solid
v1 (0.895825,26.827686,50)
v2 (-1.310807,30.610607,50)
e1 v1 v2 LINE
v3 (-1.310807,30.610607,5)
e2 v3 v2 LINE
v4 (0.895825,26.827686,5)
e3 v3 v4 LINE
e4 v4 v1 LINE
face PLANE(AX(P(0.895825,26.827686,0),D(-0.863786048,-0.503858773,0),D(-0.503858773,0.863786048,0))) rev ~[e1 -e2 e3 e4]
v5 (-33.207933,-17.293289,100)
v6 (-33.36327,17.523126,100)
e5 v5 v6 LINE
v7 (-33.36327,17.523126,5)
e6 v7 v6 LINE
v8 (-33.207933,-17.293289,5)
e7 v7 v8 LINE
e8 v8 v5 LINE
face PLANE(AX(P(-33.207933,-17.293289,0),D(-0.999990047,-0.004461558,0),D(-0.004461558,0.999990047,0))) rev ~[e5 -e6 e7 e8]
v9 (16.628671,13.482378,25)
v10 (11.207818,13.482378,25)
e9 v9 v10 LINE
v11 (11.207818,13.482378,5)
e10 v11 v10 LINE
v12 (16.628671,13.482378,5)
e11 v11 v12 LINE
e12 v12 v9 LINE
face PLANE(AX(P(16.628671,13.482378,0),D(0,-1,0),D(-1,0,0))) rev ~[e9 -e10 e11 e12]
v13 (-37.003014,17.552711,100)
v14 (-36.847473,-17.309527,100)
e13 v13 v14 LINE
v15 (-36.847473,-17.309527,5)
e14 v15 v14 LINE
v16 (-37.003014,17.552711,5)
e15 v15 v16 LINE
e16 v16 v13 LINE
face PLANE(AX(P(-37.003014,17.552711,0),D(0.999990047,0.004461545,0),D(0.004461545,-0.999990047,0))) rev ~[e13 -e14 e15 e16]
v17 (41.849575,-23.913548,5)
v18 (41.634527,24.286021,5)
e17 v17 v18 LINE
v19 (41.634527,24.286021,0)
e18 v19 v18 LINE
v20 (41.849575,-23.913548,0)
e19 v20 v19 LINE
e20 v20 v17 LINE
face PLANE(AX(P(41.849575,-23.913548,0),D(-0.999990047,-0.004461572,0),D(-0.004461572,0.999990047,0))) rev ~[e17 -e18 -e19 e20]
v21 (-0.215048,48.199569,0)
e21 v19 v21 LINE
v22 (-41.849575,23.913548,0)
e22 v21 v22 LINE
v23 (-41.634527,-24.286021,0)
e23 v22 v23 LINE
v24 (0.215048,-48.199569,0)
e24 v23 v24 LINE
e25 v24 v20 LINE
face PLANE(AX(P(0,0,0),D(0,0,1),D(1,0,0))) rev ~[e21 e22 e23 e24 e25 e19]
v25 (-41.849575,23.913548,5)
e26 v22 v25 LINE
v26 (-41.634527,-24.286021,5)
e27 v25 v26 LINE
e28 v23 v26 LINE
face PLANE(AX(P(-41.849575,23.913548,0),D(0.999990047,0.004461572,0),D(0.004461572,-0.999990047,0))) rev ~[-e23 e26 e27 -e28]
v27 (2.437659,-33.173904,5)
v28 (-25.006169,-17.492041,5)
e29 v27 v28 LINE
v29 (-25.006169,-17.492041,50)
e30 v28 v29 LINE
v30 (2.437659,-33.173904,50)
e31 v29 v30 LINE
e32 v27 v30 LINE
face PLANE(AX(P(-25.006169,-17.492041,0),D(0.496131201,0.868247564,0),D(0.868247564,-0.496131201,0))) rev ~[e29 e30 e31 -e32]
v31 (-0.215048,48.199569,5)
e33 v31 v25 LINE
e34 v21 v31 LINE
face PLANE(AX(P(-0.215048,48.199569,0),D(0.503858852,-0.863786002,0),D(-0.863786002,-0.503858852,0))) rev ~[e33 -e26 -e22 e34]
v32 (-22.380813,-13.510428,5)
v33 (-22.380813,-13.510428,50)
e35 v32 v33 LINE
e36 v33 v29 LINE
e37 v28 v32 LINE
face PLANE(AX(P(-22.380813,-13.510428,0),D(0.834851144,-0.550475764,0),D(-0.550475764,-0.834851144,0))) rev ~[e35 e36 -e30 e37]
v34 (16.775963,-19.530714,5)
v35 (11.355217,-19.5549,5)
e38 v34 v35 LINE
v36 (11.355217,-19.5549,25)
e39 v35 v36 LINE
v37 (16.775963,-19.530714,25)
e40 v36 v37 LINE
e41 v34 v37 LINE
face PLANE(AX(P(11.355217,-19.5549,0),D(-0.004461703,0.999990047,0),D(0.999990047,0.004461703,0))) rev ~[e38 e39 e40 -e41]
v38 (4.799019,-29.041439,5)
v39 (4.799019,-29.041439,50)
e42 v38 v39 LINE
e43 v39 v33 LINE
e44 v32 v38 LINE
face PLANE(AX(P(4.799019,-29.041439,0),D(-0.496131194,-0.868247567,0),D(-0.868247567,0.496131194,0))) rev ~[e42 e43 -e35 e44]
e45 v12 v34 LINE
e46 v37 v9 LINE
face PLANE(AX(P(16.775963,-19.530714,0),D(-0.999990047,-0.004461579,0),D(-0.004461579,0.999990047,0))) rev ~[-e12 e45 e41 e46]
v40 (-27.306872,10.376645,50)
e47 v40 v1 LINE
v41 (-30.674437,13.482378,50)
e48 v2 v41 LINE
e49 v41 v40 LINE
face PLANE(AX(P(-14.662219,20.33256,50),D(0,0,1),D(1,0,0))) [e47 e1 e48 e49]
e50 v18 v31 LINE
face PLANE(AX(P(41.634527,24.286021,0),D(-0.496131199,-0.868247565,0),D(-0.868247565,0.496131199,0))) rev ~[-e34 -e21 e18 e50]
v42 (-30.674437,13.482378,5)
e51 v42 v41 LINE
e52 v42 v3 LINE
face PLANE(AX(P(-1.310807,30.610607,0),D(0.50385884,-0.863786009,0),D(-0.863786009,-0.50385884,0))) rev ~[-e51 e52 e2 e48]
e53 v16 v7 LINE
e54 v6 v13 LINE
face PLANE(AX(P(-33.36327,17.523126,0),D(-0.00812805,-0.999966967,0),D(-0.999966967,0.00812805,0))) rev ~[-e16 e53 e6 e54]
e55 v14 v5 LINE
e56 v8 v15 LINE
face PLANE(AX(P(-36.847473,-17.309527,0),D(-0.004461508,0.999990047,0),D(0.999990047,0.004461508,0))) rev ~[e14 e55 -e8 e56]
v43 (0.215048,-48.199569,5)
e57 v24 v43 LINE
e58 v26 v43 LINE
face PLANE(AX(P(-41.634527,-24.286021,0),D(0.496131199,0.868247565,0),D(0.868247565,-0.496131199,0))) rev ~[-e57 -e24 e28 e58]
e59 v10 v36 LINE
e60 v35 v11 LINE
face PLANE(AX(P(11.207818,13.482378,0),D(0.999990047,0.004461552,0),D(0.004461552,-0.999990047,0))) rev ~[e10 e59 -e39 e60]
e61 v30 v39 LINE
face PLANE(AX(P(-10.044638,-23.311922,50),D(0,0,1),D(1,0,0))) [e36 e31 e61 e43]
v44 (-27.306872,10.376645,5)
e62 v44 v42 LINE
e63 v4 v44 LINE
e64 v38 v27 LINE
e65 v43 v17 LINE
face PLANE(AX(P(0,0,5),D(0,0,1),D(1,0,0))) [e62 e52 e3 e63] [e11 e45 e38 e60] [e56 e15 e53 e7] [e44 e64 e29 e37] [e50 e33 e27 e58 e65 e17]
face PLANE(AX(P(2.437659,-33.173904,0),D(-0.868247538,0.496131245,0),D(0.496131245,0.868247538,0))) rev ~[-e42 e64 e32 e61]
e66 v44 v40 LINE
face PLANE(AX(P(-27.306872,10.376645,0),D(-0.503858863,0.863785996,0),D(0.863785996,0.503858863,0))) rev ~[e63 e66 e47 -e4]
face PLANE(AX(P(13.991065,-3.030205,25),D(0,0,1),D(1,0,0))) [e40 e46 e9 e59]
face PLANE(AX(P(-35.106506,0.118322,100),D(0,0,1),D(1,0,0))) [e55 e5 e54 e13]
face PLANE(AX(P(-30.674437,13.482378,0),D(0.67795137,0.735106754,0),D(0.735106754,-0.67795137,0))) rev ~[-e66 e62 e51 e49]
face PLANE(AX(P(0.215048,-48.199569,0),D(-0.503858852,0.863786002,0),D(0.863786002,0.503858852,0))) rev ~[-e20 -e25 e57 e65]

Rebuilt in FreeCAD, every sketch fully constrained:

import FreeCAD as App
import Part
import Sketcher

V = App.Vector
Q = App.Units.Quantity


def add_polygon(sketch, points):
    """Adds a closed chain of lines whose ends are joined by coincident constraints."""
    first, n = sketch.GeometryCount, len(points)
    for a, b in zip(points, points[1:] + points[:1]):
        sketch.addGeometry(Part.LineSegment(App.Vector(*a, 0), App.Vector(*b, 0)), False)
    for i in range(n):
        sketch.addConstraint(Sketcher.Constraint("Coincident", first + i, 2, first + (i + 1) % n, 1))

doc = App.newDocument("Part")
body = doc.addObject("PartDesign::Body", "Body")

# Sketch on XY plane
sketch1 = doc.addObject("Sketcher::SketchObject", "Sketch")
body.addObject(sketch1)
sketch1.AttachmentSupport = (doc.XY_Plane, [""])
sketch1.MapMode = "FlatFace"
add_polygon(sketch1, [(-33.36327, 17.523126), (-37.003014, 17.552711), (-36.847473, -17.309527), (-33.207933, -17.293289)])  # lines 0-3
sketch1.addConstraint(Sketcher.Constraint("Perpendicular", 1, 2))
sketch1.addConstraint(Sketcher.Constraint("Perpendicular", 2, 3))
sketch1.addConstraint(Sketcher.Constraint("DistanceY", 2, 2, 0, 2, Q("34.846 mm")))
sketch1.addConstraint(Sketcher.Constraint("Distance", 3, Q("34.816762 mm")))
sketch1.addConstraint(Sketcher.Constraint("DistanceY", -1, 1, 0, 2, Q("17.552711 mm")))
sketch1.addConstraint(Sketcher.Constraint("DistanceX", 3, 2, -1, 1, Q("33.36327 mm")))
sketch1.addConstraint(Sketcher.Constraint("DistanceX", 0, 2, 1, 2, Q("0.155541 mm")))
sketch1.addConstraint(Sketcher.Constraint("DistanceX", 1, 2, 2, 2, Q("3.63954 mm")))
pad1 = doc.addObject("PartDesign::Pad", "Pad")
body.addObject(pad1)
pad1.Profile = sketch1
pad1.Length = 100

# Sketch on XY plane
sketch2 = doc.addObject("Sketcher::SketchObject", "Sketch001")
body.addObject(sketch2)
sketch2.AttachmentSupport = (doc.XY_Plane, [""])
sketch2.MapMode = "FlatFace"
add_polygon(sketch2, [(0.215048, -48.199569), (41.849575, -23.913548), (41.634527, 24.286021), (-0.215048, 48.199569), (-41.849575, 23.913548), (-41.634527, -24.286021)])  # lines 0-5
add_polygon(sketch2, [(4.799019, -29.041439), (2.437659, -33.173904), (-25.006169, -17.492041), (-22.380813, -13.510428)])  # lines 6-9
add_polygon(sketch2, [(11.355217, -19.5549), (11.207818, 13.482378), (16.628671, 13.482378), (16.775963, -19.530714)])  # lines 10-13
add_polygon(sketch2, [(-33.207933, -17.293289), (-36.847473, -17.309527), (-37.003014, 17.552711), (-33.36327, 17.523126)])  # lines 14-17
add_polygon(sketch2, [(0.895825, 26.827686), (-27.306872, 10.376645), (-30.674437, 13.482378), (-1.310807, 30.610607)])  # lines 18-21
sketch2.addConstraint(Sketcher.Constraint("Horizontal", 11))
sketch2.addConstraint(Sketcher.Constraint("Symmetric", 0, 2, 3, 2, -1, 1))
sketch2.addConstraint(Sketcher.Constraint("Symmetric", 1, 2, 4, 2, -1, 1))
sketch2.addConstraint(Sketcher.Constraint("Symmetric", 2, 2, 5, 2, -1, 1))
sketch2.addConstraint(Sketcher.Constraint("Perpendicular", 5, 6))
sketch2.addConstraint(Sketcher.Constraint("Perpendicular", 6, 7))
sketch2.addConstraint(Sketcher.Constraint("Parallel", 7, 9))
sketch2.addConstraint(Sketcher.Constraint("Parallel", 4, 10))
sketch2.addConstraint(Sketcher.Constraint("Parallel", 10, 12))
sketch2.addConstraint(Sketcher.Constraint("Perpendicular", 12, 13))
sketch2.addConstraint(Sketcher.Constraint("Parallel", 13, 14))
sketch2.addConstraint(Sketcher.Constraint("Perpendicular", 14, 15))
sketch2.addConstraint(Sketcher.Constraint("Parallel", 15, 17))
sketch2.addConstraint(Sketcher.Constraint("Parallel", 3, 18))
sketch2.addConstraint(Sketcher.Constraint("Parallel", 18, 20))
sketch2.addConstraint(Sketcher.Constraint("Perpendicular", 20, 21))
sketch2.addConstraint(Sketcher.Constraint("Horizontal", 11, 2, 19, 2))
sketch2.addConstraint(Sketcher.Constraint("Equal", 0, 1))
sketch2.addConstraint(Sketcher.Constraint("Equal", 1, 2))
sketch2.addConstraint(Sketcher.Constraint("Distance", 7, Q("31.608298 mm")))
sketch2.addConstraint(Sketcher.Constraint("Distance", 13, Q("5.4208 mm")))
sketch2.addConstraint(Sketcher.Constraint("DistanceY", 13, 2, -1, 1, Q("19.5549 mm")))
sketch2.addConstraint(Sketcher.Constraint("DistanceX", 9, 2, 10, 2, Q("6.408799 mm")))
sketch2.addConstraint(Sketcher.Constraint("DistanceY", 14, 2, 8, 2, Q("3.799099 mm")))
sketch2.addConstraint(Sketcher.Constraint("DistanceX", 15, 2, 8, 2, Q("14.622201 mm")))
sketch2.addConstraint(Sketcher.Constraint("DistanceX", 16, 2, 7, 2, Q("8.357101 mm")))
sketch2.addConstraint(Sketcher.Constraint("DistanceX", 16, 2, 18, 2, Q("6.056398 mm")))
sketch2.addConstraint(Sketcher.Constraint("Distance", 0, Q("48.200048 mm")))
sketch2.addConstraint(Sketcher.Constraint("Distance", 8, Q("4.769249 mm")))
sketch2.addConstraint(Sketcher.Constraint("Distance", 12, Q("33.013421 mm")))
sketch2.addConstraint(Sketcher.Constraint("Distance", 17, Q("34.816762 mm")))
sketch2.addConstraint(Sketcher.Constraint("DistanceY", -1, 1, 1, 2, Q("24.286021 mm")))
sketch2.addConstraint(Sketcher.Constraint("DistanceY", -1, 1, 2, 2, Q("48.199569 mm")))
sketch2.addConstraint(Sketcher.Constraint("DistanceX", -1, 1, 6, 2, Q("2.437659 mm")))
sketch2.addConstraint(Sketcher.Constraint("DistanceY", 7, 2, -1, 1, Q("17.492041 mm")))
sketch2.addConstraint(Sketcher.Constraint("DistanceX", -1, 1, 9, 2, Q("4.799019 mm")))
sketch2.addConstraint(Sketcher.Constraint("DistanceY", -1, 1, 10, 2, Q("13.482378 mm")))
sketch2.addConstraint(Sketcher.Constraint("DistanceY", -1, 1, 15, 2, Q("17.552711 mm")))
sketch2.addConstraint(Sketcher.Constraint("DistanceY", 18, 2, 16, 2, Q("7.146481 mm")))
sketch2.addConstraint(Sketcher.Constraint("DistanceX", 20, 2, 2, 2, Q("1.095759 mm")))
sketch2.addConstraint(Sketcher.Constraint("DistanceY", 20, 2, 2, 2, Q("17.588962 mm")))
pad2 = doc.addObject("PartDesign::Pad", "Pad001")
body.addObject(pad2)
pad2.Profile = sketch2
pad2.Length = 5

# Sketch on XY plane
sketch3 = doc.addObject("Sketcher::SketchObject", "Sketch002")
body.addObject(sketch3)
sketch3.AttachmentSupport = (doc.XY_Plane, [""])
sketch3.MapMode = "FlatFace"
add_polygon(sketch3, [(-1.310807, 30.610607), (-30.674437, 13.482378), (-27.306872, 10.376645), (0.895825, 26.827686)])  # lines 0-3
add_polygon(sketch3, [(-22.380813, -13.510428), (-25.006169, -17.492041), (2.437659, -33.173904), (4.799019, -29.041439)])  # lines 4-7
sketch3.addConstraint(Sketcher.Constraint("Parallel", 0, 2))
sketch3.addConstraint(Sketcher.Constraint("Perpendicular", 2, 3))
sketch3.addConstraint(Sketcher.Constraint("Perpendicular", 5, 6))
sketch3.addConstraint(Sketcher.Constraint("Perpendicular", 6, 7))
sketch3.addConstraint(Sketcher.Constraint("Distance", 5, Q("31.608298 mm")))
sketch3.addConstraint(Sketcher.Constraint("Distance", 4, Q("4.769249 mm")))
sketch3.addConstraint(Sketcher.Constraint("DistanceY", -1, 1, 0, 2, Q("13.482378 mm")))
sketch3.addConstraint(Sketcher.Constraint("DistanceX", 1, 2, -1, 1, Q("27.306872 mm")))
sketch3.addConstraint(Sketcher.Constraint("DistanceX", 4, 2, -1, 1, Q("25.006169 mm")))
sketch3.addConstraint(Sketcher.Constraint("DistanceY", 4, 2, -1, 1, Q("17.492041 mm")))
sketch3.addConstraint(Sketcher.Constraint("DistanceX", -1, 1, 5, 2, Q("2.437659 mm")))
sketch3.addConstraint(Sketcher.Constraint("DistanceX", -1, 1, 6, 2, Q("4.799019 mm")))
sketch3.addConstraint(Sketcher.Constraint("DistanceY", 1, 2, 2, 2, Q("16.451041 mm")))
sketch3.addConstraint(Sketcher.Constraint("DistanceX", 0, 2, 2, 2, Q("31.570262 mm")))
sketch3.addConstraint(Sketcher.Constraint("DistanceX", 3, 2, 2, 2, Q("2.206632 mm")))
sketch3.addConstraint(Sketcher.Constraint("DistanceY", 2, 2, 3, 2, Q("3.782921 mm")))
pad3 = doc.addObject("PartDesign::Pad", "Pad002")
body.addObject(pad3)
pad3.Profile = sketch3
pad3.Length = 50

# Sketch on XY plane
sketch4 = doc.addObject("Sketcher::SketchObject", "Sketch003")
body.addObject(sketch4)
sketch4.AttachmentSupport = (doc.XY_Plane, [""])
sketch4.MapMode = "FlatFace"
add_polygon(sketch4, [(16.775963, -19.530714), (16.628671, 13.482378), (11.207818, 13.482378), (11.355217, -19.5549)])  # lines 0-3
sketch4.addConstraint(Sketcher.Constraint("Horizontal", 1))
sketch4.addConstraint(Sketcher.Constraint("Parallel", 0, 2))
sketch4.addConstraint(Sketcher.Constraint("Perpendicular", 2, 3))
sketch4.addConstraint(Sketcher.Constraint("Distance", 3, Q("5.4208 mm")))
sketch4.addConstraint(Sketcher.Constraint("DistanceY", 2, 2, -1, 1, Q("19.5549 mm")))
sketch4.addConstraint(Sketcher.Constraint("DistanceX", 1, 2, 2, 2, Q("0.147399 mm")))
sketch4.addConstraint(Sketcher.Constraint("Distance", 0, Q("33.013421 mm")))
sketch4.addConstraint(Sketcher.Constraint("DistanceX", -1, 1, 0, 2, Q("16.628671 mm")))
pad4 = doc.addObject("PartDesign::Pad", "Pad003")
body.addObject(pad4)
pad4.Profile = sketch4
pad4.Length = 25

doc.recompute()
